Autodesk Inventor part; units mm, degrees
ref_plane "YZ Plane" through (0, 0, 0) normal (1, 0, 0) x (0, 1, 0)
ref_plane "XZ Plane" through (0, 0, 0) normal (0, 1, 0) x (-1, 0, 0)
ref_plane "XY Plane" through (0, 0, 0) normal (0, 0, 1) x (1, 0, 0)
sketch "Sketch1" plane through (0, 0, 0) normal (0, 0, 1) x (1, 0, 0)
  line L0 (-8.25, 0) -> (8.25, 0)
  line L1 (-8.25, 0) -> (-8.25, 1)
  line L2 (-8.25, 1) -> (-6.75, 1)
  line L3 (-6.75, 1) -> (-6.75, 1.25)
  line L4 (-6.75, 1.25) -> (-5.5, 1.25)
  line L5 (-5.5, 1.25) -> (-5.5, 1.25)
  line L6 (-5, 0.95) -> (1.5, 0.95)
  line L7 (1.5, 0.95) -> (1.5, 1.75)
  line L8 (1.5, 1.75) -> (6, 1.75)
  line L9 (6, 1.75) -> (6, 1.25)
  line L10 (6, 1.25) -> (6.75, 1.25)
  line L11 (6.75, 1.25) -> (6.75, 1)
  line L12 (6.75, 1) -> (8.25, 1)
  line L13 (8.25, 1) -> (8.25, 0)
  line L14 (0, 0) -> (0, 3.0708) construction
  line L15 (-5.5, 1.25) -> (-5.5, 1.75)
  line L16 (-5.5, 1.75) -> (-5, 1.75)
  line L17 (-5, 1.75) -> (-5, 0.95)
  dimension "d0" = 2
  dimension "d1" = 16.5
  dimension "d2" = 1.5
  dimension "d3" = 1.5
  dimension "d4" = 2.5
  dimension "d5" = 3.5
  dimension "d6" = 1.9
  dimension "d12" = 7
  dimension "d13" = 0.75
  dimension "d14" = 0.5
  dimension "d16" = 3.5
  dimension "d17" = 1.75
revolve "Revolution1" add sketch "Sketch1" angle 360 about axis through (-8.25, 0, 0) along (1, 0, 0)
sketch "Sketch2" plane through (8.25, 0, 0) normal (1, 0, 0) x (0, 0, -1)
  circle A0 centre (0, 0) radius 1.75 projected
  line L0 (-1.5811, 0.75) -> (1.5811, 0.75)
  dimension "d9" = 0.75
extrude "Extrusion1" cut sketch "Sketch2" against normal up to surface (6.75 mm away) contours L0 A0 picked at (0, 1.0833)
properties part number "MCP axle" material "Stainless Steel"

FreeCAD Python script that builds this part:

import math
import FreeCAD as App
import Part
import Sketcher

V = App.Vector
Q = App.Units.Quantity


def add_polygon(sketch, points):
    """Adds a closed chain of lines whose ends are joined by coincident constraints."""
    first, n = sketch.GeometryCount, len(points)
    for a, b in zip(points, points[1:] + points[:1]):
        sketch.addGeometry(Part.LineSegment(App.Vector(*a, 0), App.Vector(*b, 0)), False)
    for i in range(n):
        sketch.addConstraint(Sketcher.Constraint("Coincident", first + i, 2, first + (i + 1) % n, 1))

doc = App.newDocument("Part")
body = doc.addObject("PartDesign::Body", "Body")

sketch1 = body.newObject("Sketcher::SketchObject", "Sketch")
sketch1.AttachmentSupport = (doc.getObject("XY_Plane"), [""])
sketch1.MapMode = "FlatFace"
add_polygon(sketch1, [(-8.25, 1), (-8.25, 0), (8.25, 0), (8.25, 1), (6.75, 1), (6.75, 1.25), (6, 1.25), (6, 1.75), (1.5, 1.75), (1.5, 0.95), (-5, 0.95), (-5, 1.75), (-5.5, 1.75), (-5.5, 1.25), (-6.75, 1.25), (-6.75, 1)])
sketch1.addConstraint(Sketcher.Constraint("Vertical", 0))
sketch1.addConstraint(Sketcher.Constraint("Horizontal", 1))
sketch1.addConstraint(Sketcher.Constraint("Vertical", 2))
sketch1.addConstraint(Sketcher.Constraint("Horizontal", 3))
sketch1.addConstraint(Sketcher.Constraint("Vertical", 4))
sketch1.addConstraint(Sketcher.Constraint("Horizontal", 5))
sketch1.addConstraint(Sketcher.Constraint("Vertical", 6))
sketch1.addConstraint(Sketcher.Constraint("Horizontal", 7))
sketch1.addConstraint(Sketcher.Constraint("Vertical", 8))
sketch1.addConstraint(Sketcher.Constraint("Horizontal", 9))
sketch1.addConstraint(Sketcher.Constraint("Vertical", 10))
sketch1.addConstraint(Sketcher.Constraint("Horizontal", 11))
sketch1.addConstraint(Sketcher.Constraint("Vertical", 12))
sketch1.addConstraint(Sketcher.Constraint("Horizontal", 13))
sketch1.addConstraint(Sketcher.Constraint("Vertical", 14))
sketch1.addConstraint(Sketcher.Constraint("Horizontal", 15))
sketch1.addConstraint(Sketcher.Constraint("Symmetric", 0, 2, 1, 2, -1, 1))
sketch1.addConstraint(Sketcher.Constraint("Symmetric", 4, 2, 13, 2, -2))
sketch1.addConstraint(Sketcher.Constraint("Horizontal", 7, 2, 10, 2))
sketch1.addConstraint(Sketcher.Constraint("Horizontal", 3, 2, 14, 2))
sketch1.addConstraint(Sketcher.Constraint("Equal", 11, 6))
sketch1.addConstraint(Sketcher.Constraint("DistanceX", 1, 1, 1, 2, Q("16.5 mm")))
sketch1.addConstraint(Sketcher.Constraint("DistanceX", 3, 2, 3, 1, Q("1.5 mm")))
sketch1.addConstraint(Sketcher.Constraint("DistanceX", 11, 2, 11, 1, Q("0.5 mm")))
sketch1.addConstraint(Sketcher.Constraint("DistanceX", 11, 2, 7, 2, Q("7 mm")))
sketch1.addConstraint(Sketcher.Constraint("DistanceX", 5, 2, 5, 1, Q("0.75 mm")))
sketch1.addConstraint(Sketcher.Constraint("DistanceX", -1, 1, 7, 2, Q("1.5 mm")))
sketch1.addConstraint(Sketcher.Constraint("DistanceY", 0, 2, 0, 1, Q("1 mm")))
sketch1.addConstraint(Sketcher.Constraint("DistanceY", -1, 1, 6, 2, Q("1.75 mm")))
sketch1.addConstraint(Sketcher.Constraint("DistanceY", 8, 2, 8, 1, Q("0.8 mm")))
revolution = body.newObject("PartDesign::Revolution", "Revolution")
revolution.Profile = sketch1
revolution.ReferenceAxis = (sketch1, ["H_Axis"])
revolution.Angle = 360

sketch2 = body.newObject("Sketcher::SketchObject", "Sketch001")
sketch2.AttachmentSupport = (doc.getObject("YZ_Plane"), [""])
sketch2.MapMode = "FlatFace"
sketch2.AttachmentOffset = App.Placement(V(0, 0, 8.25), App.Rotation())
sketch2.addGeometry(Part.LineSegment(V(0.8, 1.6, 0), V(0.8, -1.6, 0)), False)
sketch2.addGeometry(Part.ArcOfCircle(Part.Circle(V(0, 0, 0), V(0, 0, 1), 1.8), math.radians(-65), math.radians(65)), False)
sketch2.addConstraint(Sketcher.Constraint("Coincident", 0, 1, 1, 2))
sketch2.addConstraint(Sketcher.Constraint("Coincident", 1, 1, 0, 2))
sketch2.addConstraint(Sketcher.Constraint("Vertical", 0))
sketch2.addConstraint(Sketcher.Constraint("Coincident", 1, 3, -1, 1))
sketch2.addConstraint(Sketcher.Constraint("DistanceX", -1, 1, 0, 1, Q("0.75 mm")))
sketch2.addConstraint(Sketcher.Constraint("Radius", 1, Q("1.75 mm")))
pocket1 = body.newObject("PartDesign::Pocket", "Pocket")
pocket1.Profile = sketch2
pocket1.Length = 6.75

doc.recompute()
